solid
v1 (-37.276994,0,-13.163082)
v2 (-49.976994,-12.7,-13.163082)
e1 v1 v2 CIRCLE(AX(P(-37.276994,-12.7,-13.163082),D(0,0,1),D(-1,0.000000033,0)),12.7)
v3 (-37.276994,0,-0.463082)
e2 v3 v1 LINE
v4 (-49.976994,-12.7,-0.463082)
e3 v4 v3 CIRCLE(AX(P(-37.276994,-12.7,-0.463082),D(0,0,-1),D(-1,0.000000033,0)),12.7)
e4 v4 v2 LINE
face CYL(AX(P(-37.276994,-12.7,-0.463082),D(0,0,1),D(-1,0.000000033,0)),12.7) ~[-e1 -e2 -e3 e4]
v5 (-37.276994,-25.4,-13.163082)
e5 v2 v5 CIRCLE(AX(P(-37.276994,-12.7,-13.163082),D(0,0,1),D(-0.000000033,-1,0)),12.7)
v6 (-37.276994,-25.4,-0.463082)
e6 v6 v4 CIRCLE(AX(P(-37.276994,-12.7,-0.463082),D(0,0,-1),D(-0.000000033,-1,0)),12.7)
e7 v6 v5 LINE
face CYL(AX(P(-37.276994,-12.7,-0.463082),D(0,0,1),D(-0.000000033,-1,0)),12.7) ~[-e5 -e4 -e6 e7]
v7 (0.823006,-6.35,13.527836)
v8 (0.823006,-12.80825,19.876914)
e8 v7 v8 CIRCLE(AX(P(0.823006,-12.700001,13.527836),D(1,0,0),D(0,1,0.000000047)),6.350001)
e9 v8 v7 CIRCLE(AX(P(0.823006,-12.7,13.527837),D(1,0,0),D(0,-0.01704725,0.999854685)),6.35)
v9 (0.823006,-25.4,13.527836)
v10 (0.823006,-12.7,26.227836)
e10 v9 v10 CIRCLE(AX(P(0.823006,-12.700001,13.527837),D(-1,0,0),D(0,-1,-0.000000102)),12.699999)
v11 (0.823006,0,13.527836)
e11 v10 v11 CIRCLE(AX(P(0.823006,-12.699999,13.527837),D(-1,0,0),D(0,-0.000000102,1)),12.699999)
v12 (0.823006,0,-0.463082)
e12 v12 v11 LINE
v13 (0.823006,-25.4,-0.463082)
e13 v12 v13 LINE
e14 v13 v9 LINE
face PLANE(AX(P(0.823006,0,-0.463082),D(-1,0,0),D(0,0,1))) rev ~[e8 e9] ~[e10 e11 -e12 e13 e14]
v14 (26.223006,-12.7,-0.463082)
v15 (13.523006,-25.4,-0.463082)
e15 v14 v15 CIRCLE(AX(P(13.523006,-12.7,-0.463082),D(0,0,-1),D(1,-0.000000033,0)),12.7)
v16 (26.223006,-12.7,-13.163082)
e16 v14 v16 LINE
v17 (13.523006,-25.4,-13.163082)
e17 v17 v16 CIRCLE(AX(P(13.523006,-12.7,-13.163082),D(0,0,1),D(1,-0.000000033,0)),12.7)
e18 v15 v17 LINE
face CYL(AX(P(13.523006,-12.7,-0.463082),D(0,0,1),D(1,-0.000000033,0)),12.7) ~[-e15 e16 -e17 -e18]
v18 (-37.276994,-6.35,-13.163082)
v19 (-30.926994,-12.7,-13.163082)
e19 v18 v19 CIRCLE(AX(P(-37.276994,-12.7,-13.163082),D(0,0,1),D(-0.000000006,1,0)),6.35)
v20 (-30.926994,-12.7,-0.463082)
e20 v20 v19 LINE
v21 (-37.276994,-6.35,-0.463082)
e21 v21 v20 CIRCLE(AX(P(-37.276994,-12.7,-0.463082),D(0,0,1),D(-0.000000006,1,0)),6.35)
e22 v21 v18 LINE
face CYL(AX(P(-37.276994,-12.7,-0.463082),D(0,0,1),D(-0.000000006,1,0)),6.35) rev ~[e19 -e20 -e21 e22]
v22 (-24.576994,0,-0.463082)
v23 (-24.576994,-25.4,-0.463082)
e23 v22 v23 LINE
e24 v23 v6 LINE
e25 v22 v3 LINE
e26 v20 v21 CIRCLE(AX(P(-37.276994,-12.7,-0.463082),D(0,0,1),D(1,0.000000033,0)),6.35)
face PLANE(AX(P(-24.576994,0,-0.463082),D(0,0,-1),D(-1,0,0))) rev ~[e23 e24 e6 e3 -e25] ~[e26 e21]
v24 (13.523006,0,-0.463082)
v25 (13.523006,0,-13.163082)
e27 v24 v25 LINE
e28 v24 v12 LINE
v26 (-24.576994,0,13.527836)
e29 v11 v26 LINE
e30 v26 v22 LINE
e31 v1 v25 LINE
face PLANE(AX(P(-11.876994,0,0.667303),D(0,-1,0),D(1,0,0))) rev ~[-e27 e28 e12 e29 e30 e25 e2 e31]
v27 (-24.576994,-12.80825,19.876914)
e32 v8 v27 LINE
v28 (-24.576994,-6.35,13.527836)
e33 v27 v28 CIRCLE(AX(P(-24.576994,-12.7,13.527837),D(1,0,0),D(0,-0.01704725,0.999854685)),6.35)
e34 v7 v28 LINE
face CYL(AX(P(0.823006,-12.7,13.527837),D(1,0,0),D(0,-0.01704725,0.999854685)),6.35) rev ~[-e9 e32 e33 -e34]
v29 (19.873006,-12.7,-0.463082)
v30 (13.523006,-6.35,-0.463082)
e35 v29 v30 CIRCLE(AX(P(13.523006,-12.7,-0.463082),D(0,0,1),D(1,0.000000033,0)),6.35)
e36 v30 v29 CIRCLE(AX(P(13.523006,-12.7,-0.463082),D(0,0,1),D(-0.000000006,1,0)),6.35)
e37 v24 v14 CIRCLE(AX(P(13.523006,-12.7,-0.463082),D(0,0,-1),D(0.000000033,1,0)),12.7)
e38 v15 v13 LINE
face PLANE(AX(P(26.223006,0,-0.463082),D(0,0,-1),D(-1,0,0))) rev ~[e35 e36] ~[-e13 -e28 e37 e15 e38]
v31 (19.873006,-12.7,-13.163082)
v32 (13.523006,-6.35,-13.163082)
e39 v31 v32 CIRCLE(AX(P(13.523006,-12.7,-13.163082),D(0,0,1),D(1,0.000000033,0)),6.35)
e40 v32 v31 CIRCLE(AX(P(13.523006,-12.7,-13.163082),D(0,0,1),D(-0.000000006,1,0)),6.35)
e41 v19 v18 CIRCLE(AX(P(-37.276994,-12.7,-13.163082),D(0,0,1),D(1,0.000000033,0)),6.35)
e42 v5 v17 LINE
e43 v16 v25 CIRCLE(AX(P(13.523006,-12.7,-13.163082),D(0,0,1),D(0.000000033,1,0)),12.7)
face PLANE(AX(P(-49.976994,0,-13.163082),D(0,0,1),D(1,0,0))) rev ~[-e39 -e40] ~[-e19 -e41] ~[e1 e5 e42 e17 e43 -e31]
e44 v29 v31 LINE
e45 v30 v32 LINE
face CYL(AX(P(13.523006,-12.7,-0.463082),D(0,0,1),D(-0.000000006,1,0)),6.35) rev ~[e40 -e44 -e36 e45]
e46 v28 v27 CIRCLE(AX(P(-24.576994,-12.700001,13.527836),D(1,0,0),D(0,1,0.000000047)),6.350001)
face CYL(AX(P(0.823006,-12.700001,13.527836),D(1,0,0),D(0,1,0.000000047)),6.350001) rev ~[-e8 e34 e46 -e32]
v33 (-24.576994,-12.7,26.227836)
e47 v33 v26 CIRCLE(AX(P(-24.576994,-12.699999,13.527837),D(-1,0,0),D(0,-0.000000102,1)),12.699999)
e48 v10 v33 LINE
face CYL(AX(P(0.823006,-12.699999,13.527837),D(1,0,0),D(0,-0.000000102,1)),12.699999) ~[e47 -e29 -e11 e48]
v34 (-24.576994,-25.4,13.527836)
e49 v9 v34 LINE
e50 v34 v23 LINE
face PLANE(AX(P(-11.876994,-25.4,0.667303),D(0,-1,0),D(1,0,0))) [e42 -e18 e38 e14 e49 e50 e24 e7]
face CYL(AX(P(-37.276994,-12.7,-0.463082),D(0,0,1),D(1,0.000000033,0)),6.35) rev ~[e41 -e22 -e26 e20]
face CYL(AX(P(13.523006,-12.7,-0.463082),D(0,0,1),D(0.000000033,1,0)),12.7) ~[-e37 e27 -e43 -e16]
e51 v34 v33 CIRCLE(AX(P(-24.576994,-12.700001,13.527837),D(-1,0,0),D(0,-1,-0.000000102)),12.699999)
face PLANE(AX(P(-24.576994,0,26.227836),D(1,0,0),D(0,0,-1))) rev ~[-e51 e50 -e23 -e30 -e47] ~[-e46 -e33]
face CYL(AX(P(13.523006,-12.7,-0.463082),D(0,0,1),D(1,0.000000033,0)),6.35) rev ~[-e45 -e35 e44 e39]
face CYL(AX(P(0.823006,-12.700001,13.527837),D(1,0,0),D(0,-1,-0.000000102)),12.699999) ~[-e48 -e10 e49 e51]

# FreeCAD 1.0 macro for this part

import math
import FreeCAD as App
import Part
import Sketcher

V = App.Vector
Q = App.Units.Quantity

doc = App.newDocument("Part")
body = doc.addObject("PartDesign::Body", "Body")

sketch1 = body.newObject("Sketcher::SketchObject", "Sketch")
sketch1.AttachmentSupport = (doc.getObject("XZ_Plane"), [""])
sketch1.MapMode = "FlatFace"
sketch1.addGeometry(Part.LineSegment(V(-50, 0, 0), V(-50, -13, 0)), False)
sketch1.addGeometry(Part.LineSegment(V(-50, -13, 0), V(26, -13, 0)), False)
sketch1.addGeometry(Part.LineSegment(V(26, -13, 0), V(26, 0, 0)), False)
sketch1.addGeometry(Part.LineSegment(V(26, 0, 0), V(1, 0, 0)), False)
sketch1.addGeometry(Part.LineSegment(V(1, 0, 0), V(1, 26, 0)), False)
sketch1.addGeometry(Part.LineSegment(V(1, 26, 0), V(-25, 26, 0)), False)
sketch1.addGeometry(Part.LineSegment(V(-25, 26, 0), V(-25, 0, 0)), False)
sketch1.addGeometry(Part.LineSegment(V(-25, 0, 0), V(-50, 0, 0)), False)
sketch1.addConstraint(Sketcher.Constraint("Coincident", 0, 2, 1, 1))
sketch1.addConstraint(Sketcher.Constraint("Coincident", 1, 2, 2, 1))
sketch1.addConstraint(Sketcher.Constraint("Coincident", 2, 2, 3, 1))
sketch1.addConstraint(Sketcher.Constraint("Coincident", 3, 2, 4, 1))
sketch1.addConstraint(Sketcher.Constraint("Coincident", 4, 2, 5, 1))
sketch1.addConstraint(Sketcher.Constraint("Coincident", 5, 2, 6, 1))
sketch1.addConstraint(Sketcher.Constraint("Coincident", 6, 2, 7, 1))
sketch1.addConstraint(Sketcher.Constraint("Coincident", 7, 2, 0, 1))
sketch1.addConstraint(Sketcher.Constraint("Vertical", 0))
sketch1.addConstraint(Sketcher.Constraint("Horizontal", 1))
sketch1.addConstraint(Sketcher.Constraint("Vertical", 2))
sketch1.addConstraint(Sketcher.Constraint("Horizontal", 3))
sketch1.addConstraint(Sketcher.Constraint("Vertical", 4))
sketch1.addConstraint(Sketcher.Constraint("Horizontal", 5))
sketch1.addConstraint(Sketcher.Constraint("Vertical", 6))
sketch1.addConstraint(Sketcher.Constraint("Horizontal", 7))
sketch1.addConstraint(Sketcher.Constraint("Horizontal", 3, 2, 6, 2))
sketch1.addConstraint(Sketcher.Constraint("Equal", 3, 5))
sketch1.addConstraint(Sketcher.Constraint("Equal", 5, 7))
sketch1.addConstraint(Sketcher.Constraint("DistanceX", 1, 1, 1, 2, Q("3 in")))
sketch1.addConstraint(Sketcher.Constraint("DistanceY", 0, 2, 0, 1, Q("0.5 in")))
sketch1.addConstraint(Sketcher.Constraint("DistanceY", 4, 1, 4, 2, Q("26.690918 mm")))
sketch1.addConstraint(Sketcher.Constraint("DistanceY", 0, 2, -1, 1, Q("13.163082 mm")))
sketch1.addConstraint(Sketcher.Constraint("DistanceX", 0, 2, -1, 1, Q("49.976994 mm")))
pad1 = body.newObject("PartDesign::Pad", "Pad")
pad1.Profile = sketch1
pad1.Length = Q("1 in")

sketch2 = body.newObject("Sketcher::SketchObject", "Sketch001")
sketch2.AttachmentSupport = (doc.getObject("YZ_Plane"), [""])
sketch2.MapMode = "FlatFace"
sketch2.AttachmentOffset = App.Placement(V(0, 0, 0.823006), App.Rotation())
sketch2.addGeometry(Part.LineSegment(V(-25, 26, 0), V(-25, 14, 0)), False)
sketch2.addGeometry(Part.ArcOfCircle(Part.Circle(V(-13, 14, 0), V(0, 0, 1), 13), math.radians(90), math.radians(180)), False)
sketch2.addGeometry(Part.LineSegment(V(-13, 26, 0), V(-25, 26, 0)), False)
sketch2.addGeometry(Part.LineSegment(V(0, 26, 0), V(-13, 26, 0)), False)
sketch2.addGeometry(Part.ArcOfCircle(Part.Circle(V(-13, 14, 0), V(0, 0, 1), 13), math.radians(0), math.radians(90)), False)
sketch2.addGeometry(Part.LineSegment(V(0, 14, 0), V(0, 26, 0)), False)
sketch2.addConstraint(Sketcher.Constraint("Tangent", 0, 2, 1, 2))
sketch2.addConstraint(Sketcher.Constraint("Tangent", 1, 1, 2, 1))
sketch2.addConstraint(Sketcher.Constraint("Coincident", 2, 2, 0, 1))
sketch2.addConstraint(Sketcher.Constraint("Tangent", 3, 2, 4, 2))
sketch2.addConstraint(Sketcher.Constraint("Tangent", 4, 1, 5, 1))
sketch2.addConstraint(Sketcher.Constraint("Coincident", 5, 2, 3, 1))
sketch2.addConstraint(Sketcher.Constraint("Vertical", 0))
sketch2.addConstraint(Sketcher.Constraint("Horizontal", 2))
sketch2.addConstraint(Sketcher.Constraint("Horizontal", 3))
sketch2.addConstraint(Sketcher.Constraint("Vertical", 5))
sketch2.addConstraint(Sketcher.Constraint("Coincident", 4, 3, 1, 3))
sketch2.addConstraint(Sketcher.Constraint("Equal", 1, 4))
sketch2.addConstraint(Sketcher.Constraint("PointOnObject", 4, 1, -2))
sketch2.addConstraint(Sketcher.Constraint("Radius", 1, Q("0.4999999 in")))
sketch2.addConstraint(Sketcher.Constraint("DistanceY", -1, 1, 1, 3, Q("13.527837 mm")))
pocket1 = body.newObject("PartDesign::Pocket", "Pocket")
pocket1.Profile = sketch2
pocket1.Length = Q("1 in")

sketch3 = body.newObject("Sketcher::SketchObject", "Sketch002")
sketch3.AttachmentSupport = (doc.getObject("XY_Plane"), [""])
sketch3.MapMode = "FlatFace"
sketch3.AttachmentOffset = App.Placement(V(0, 0, -0.463082), App.Rotation())
sketch3.addGeometry(Part.LineSegment(V(26, 0, 0), V(14, 0, 0)), False)
sketch3.addGeometry(Part.ArcOfCircle(Part.Circle(V(14, -13, 0), V(0, 0, 1), 13), math.radians(0), math.radians(90)), False)
sketch3.addGeometry(Part.LineSegment(V(26, -13, 0), V(26, 0, 0)), False)
sketch3.addGeometry(Part.LineSegment(V(26, -25, 0), V(26, -13, 0)), False)
sketch3.addGeometry(Part.ArcOfCircle(Part.Circle(V(14, -13, 0), V(0, 0, 1), 13), math.radians(-90), math.radians(0)), False)
sketch3.addGeometry(Part.LineSegment(V(14, -25, 0), V(26, -25, 0)), False)
sketch3.addConstraint(Sketcher.Constraint("Tangent", 0, 2, 1, 2))
sketch3.addConstraint(Sketcher.Constraint("Tangent", 1, 1, 2, 1))
sketch3.addConstraint(Sketcher.Constraint("Coincident", 2, 2, 0, 1))
sketch3.addConstraint(Sketcher.Constraint("Tangent", 3, 2, 4, 2))
sketch3.addConstraint(Sketcher.Constraint("Tangent", 4, 1, 5, 1))
sketch3.addConstraint(Sketcher.Constraint("Coincident", 5, 2, 3, 1))
sketch3.addConstraint(Sketcher.Constraint("Horizontal", 0))
sketch3.addConstraint(Sketcher.Constraint("Vertical", 2))
sketch3.addConstraint(Sketcher.Constraint("Vertical", 3))
sketch3.addConstraint(Sketcher.Constraint("Horizontal", 5))
sketch3.addConstraint(Sketcher.Constraint("Coincident", 4, 3, 1, 3))
sketch3.addConstraint(Sketcher.Constraint("Equal", 1, 4))
sketch3.addConstraint(Sketcher.Constraint("PointOnObject", 0, 2, -1))
sketch3.addConstraint(Sketcher.Constraint("Radius", 1, Q("0.5 in")))
sketch3.addConstraint(Sketcher.Constraint("DistanceX", -1, 1, 1, 3, Q("13.523006 mm")))
pocket2 = body.newObject("PartDesign::Pocket", "Pocket001")
pocket2.Profile = sketch3
pocket2.Length = Q("1 in")

sketch4 = body.newObject("Sketcher::SketchObject", "Sketch003")
sketch4.AttachmentSupport = (doc.getObject("XY_Plane"), [""])
sketch4.MapMode = "FlatFace"
sketch4.AttachmentOffset = App.Placement(V(0, 0, -0.463082), App.Rotation())
sketch4.addGeometry(Part.ArcOfCircle(Part.Circle(V(-37, -13, 0), V(0, 0, 1), 13), math.radians(-180), math.radians(-90)), False)
sketch4.addGeometry(Part.LineSegment(V(-50, -13, 0), V(-50, -25, 0)), False)
sketch4.addGeometry(Part.LineSegment(V(-50, -25, 0), V(-37, -25, 0)), False)
sketch4.addConstraint(Sketcher.Constraint("Tangent", 0, 1, 1, 1))
sketch4.addConstraint(Sketcher.Constraint("Coincident", 1, 2, 2, 1))
sketch4.addConstraint(Sketcher.Constraint("Tangent", 2, 2, 0, 2))
sketch4.addConstraint(Sketcher.Constraint("Vertical", 1))
sketch4.addConstraint(Sketcher.Constraint("Horizontal", 2))
sketch4.addConstraint(Sketcher.Constraint("Radius", 0, Q("0.5 in")))
sketch4.addConstraint(Sketcher.Constraint("DistanceY", 1, 2, -1, 1, Q("1 in")))
sketch4.addConstraint(Sketcher.Constraint("DistanceX", 0, 3, -1, 1, Q("37.276994 mm")))
pocket3 = body.newObject("PartDesign::Pocket", "Pocket002")
pocket3.Profile = sketch4
pocket3.Length = Q("1 in")

sketch5 = body.newObject("Sketcher::SketchObject", "Sketch004")
sketch5.AttachmentSupport = (doc.getObject("XY_Plane"), [""])
sketch5.MapMode = "FlatFace"
sketch5.AttachmentOffset = App.Placement(V(0, 0, -0.463082), App.Rotation())
sketch5.addGeometry(Part.ArcOfCircle(Part.Circle(V(-37, -13, 0), V(0, 0, 1), 13), math.radians(-180), math.radians(-90)), False)
sketch5.addGeometry(Part.LineSegment(V(-50, -13, 0), V(-50, -25, 0)), False)
sketch5.addGeometry(Part.LineSegment(V(-50, -25, 0), V(-37, -25, 0)), False)
sketch5.addGeometry(Part.ArcOfCircle(Part.Circle(V(-37, -13, 0), V(0, 0, 1), 13), math.radians(90), math.radians(180)), False)
sketch5.addGeometry(Part.LineSegment(V(-37, 0, 0), V(-50, 0, 0)), False)
sketch5.addGeometry(Part.LineSegment(V(-50, 0, 0), V(-50, -13, 0)), False)
sketch5.addConstraint(Sketcher.Constraint("Tangent", 0, 1, 1, 1))
sketch5.addConstraint(Sketcher.Constraint("Coincident", 1, 2, 2, 1))
sketch5.addConstraint(Sketcher.Constraint("Tangent", 2, 2, 0, 2))
sketch5.addConstraint(Sketcher.Constraint("Tangent", 3, 1, 4, 1))
sketch5.addConstraint(Sketcher.Constraint("Coincident", 4, 2, 5, 1))
sketch5.addConstraint(Sketcher.Constraint("Tangent", 5, 2, 3, 2))
sketch5.addConstraint(Sketcher.Constraint("Vertical", 1))
sketch5.addConstraint(Sketcher.Constraint("Horizontal", 2))
sketch5.addConstraint(Sketcher.Constraint("Horizontal", 4))
sketch5.addConstraint(Sketcher.Constraint("Vertical", 5))
sketch5.addConstraint(Sketcher.Constraint("Coincident", 3, 3, 0, 3))
sketch5.addConstraint(Sketcher.Constraint("Equal", 0, 3))
sketch5.addConstraint(Sketcher.Constraint("PointOnObject", 3, 1, -1))
sketch5.addConstraint(Sketcher.Constraint("Radius", 0, Q("0.5 in")))
sketch5.addConstraint(Sketcher.Constraint("DistanceX", 0, 3, -1, 1, Q("37.276994 mm")))
pocket4 = body.newObject("PartDesign::Pocket", "Pocket003")
pocket4.Profile = sketch5
pocket4.Length = Q("1 in")

sketch6 = body.newObject("Sketcher::SketchObject", "Sketch005")
sketch6.AttachmentSupport = (doc.getObject("XY_Plane"), [""])
sketch6.MapMode = "FlatFace"
sketch6.AttachmentOffset = App.Placement(V(0, 0, -0.463082), App.Rotation())
sketch6.addGeometry(Part.ArcOfCircle(Part.Circle(V(-37, -13, 0), V(0, 0, 1), 6), math.radians(90), math.radians(360)), False)
sketch6.addGeometry(Part.ArcOfCircle(Part.Circle(V(-37, -13, 0), V(0, 0, 1), 6), math.radians(0), math.radians(90)), False)
sketch6.addConstraint(Sketcher.Constraint("Tangent", 0, 1, 1, 2))
sketch6.addConstraint(Sketcher.Constraint("Coincident", 1, 1, 0, 2))
sketch6.addConstraint(Sketcher.Constraint("Horizontal", 0, 3, 1, 1))
sketch6.addConstraint(Sketcher.Constraint("Vertical", 1, 3, 0, 1))
sketch6.addConstraint(Sketcher.Constraint("Radius", 0, Q("0.25 in")))
sketch6.addConstraint(Sketcher.Constraint("DistanceY", 0, 3, -1, 1, Q("0.5 in")))
sketch6.addConstraint(Sketcher.Constraint("DistanceX", 0, 3, -1, 1, Q("37.276994 mm")))
pocket5 = body.newObject("PartDesign::Pocket", "Pocket004")
pocket5.Profile = sketch6
pocket5.Length = Q("1 in")

sketch7 = body.newObject("Sketcher::SketchObject", "Sketch006")
sketch7.AttachmentSupport = (doc.getObject("XY_Plane"), [""])
sketch7.MapMode = "FlatFace"
sketch7.AttachmentOffset = App.Placement(V(0, 0, -0.463082), App.Rotation())
sketch7.addGeometry(Part.ArcOfCircle(Part.Circle(V(14, -13, 0), V(0, 0, 1), 6), math.radians(90), math.radians(360)), False)
sketch7.addGeometry(Part.ArcOfCircle(Part.Circle(V(14, -13, 0), V(0, 0, 1), 6), math.radians(0), math.radians(90)), False)
sketch7.addConstraint(Sketcher.Constraint("Tangent", 0, 1, 1, 2))
sketch7.addConstraint(Sketcher.Constraint("Coincident", 1, 1, 0, 2))
sketch7.addConstraint(Sketcher.Constraint("Horizontal", 0, 3, 1, 1))
sketch7.addConstraint(Sketcher.Constraint("Vertical", 1, 3, 0, 1))
sketch7.addConstraint(Sketcher.Constraint("Radius", 0, Q("0.25 in")))
sketch7.addConstraint(Sketcher.Constraint("DistanceY", 0, 3, -1, 1, Q("0.5 in")))
sketch7.addConstraint(Sketcher.Constraint("DistanceX", -1, 1, 0, 3, Q("13.523006 mm")))
pocket6 = body.newObject("PartDesign::Pocket", "Pocket005")
pocket6.Profile = sketch7
pocket6.Length = Q("1 in")

sketch8 = body.newObject("Sketcher::SketchObject", "Sketch007")
sketch8.AttachmentSupport = (doc.getObject("YZ_Plane"), [""])
sketch8.MapMode = "FlatFace"
sketch8.AttachmentOffset = App.Placement(V(0, 0, 0.823006), App.Rotation())
sketch8.addGeometry(Part.ArcOfCircle(Part.Circle(V(-13, 14, 0), V(0, 0, 1), 6), math.radians(91), math.radians(360)), False)
sketch8.addGeometry(Part.ArcOfCircle(Part.Circle(V(-13, 14, 0), V(0, 0, 1), 6), math.radians(0), math.radians(91)), False)
sketch8.addConstraint(Sketcher.Constraint("Tangent", 0, 1, 1, 2))
sketch8.addConstraint(Sketcher.Constraint("Coincident", 1, 1, 0, 2))
sketch8.addConstraint(Sketcher.Constraint("Horizontal", 0, 3, 1, 1))
sketch8.addConstraint(Sketcher.Constraint("Radius", 0, Q("0.25 in")))
sketch8.addConstraint(Sketcher.Constraint("DistanceX", 0, 3, -1, 1, Q("0.5 in")))
sketch8.addConstraint(Sketcher.Constraint("DistanceX", 0, 1, -1, 1, Q("12.80825 mm")))
sketch8.addConstraint(Sketcher.Constraint("DistanceY", -1, 1, 0, 3, Q("13.527837 mm")))
pocket7 = body.newObject("PartDesign::Pocket", "Pocket006")
pocket7.Profile = sketch8
pocket7.Length = Q("1 in")

doc.recompute()
